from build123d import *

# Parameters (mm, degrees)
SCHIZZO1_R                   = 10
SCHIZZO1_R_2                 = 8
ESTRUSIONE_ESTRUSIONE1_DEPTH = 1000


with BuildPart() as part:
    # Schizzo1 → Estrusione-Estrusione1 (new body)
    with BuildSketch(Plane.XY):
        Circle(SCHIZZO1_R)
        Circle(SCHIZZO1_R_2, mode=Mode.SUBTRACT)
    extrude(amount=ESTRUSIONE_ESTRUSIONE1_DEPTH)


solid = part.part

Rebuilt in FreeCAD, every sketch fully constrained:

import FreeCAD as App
import Part
import Sketcher

V = App.Vector

doc = App.newDocument("Part")
body = doc.addObject("PartDesign::Body", "Body")

# Sketch on XY plane
sketch1 = body.newObject("Sketcher::SketchObject", "Sketch")
sketch1.AttachmentSupport = (doc.getObject("XY_Plane"), [""])
sketch1.MapMode = "FlatFace"
sketch1.addGeometry(Part.Circle(V(0, 0, 0), V(0, 0, 1), 10), False)
sketch1.addGeometry(Part.Circle(V(0, 0, 0), V(0, 0, 1), 8), False)
sketch1.addConstraint(Sketcher.Constraint("Coincident", 0, 3, -1, 1))
sketch1.addConstraint(Sketcher.Constraint("Coincident", 1, 3, -1, 1))
sketch1.addConstraint(Sketcher.Constraint("Diameter", 0, 20.0))
sketch1.addConstraint(Sketcher.Constraint("Diameter", 1, 16.0))
pad1 = body.newObject("PartDesign::Pad", "Pad")
pad1.Profile = sketch1
pad1.Length = 1000

doc.recompute()
